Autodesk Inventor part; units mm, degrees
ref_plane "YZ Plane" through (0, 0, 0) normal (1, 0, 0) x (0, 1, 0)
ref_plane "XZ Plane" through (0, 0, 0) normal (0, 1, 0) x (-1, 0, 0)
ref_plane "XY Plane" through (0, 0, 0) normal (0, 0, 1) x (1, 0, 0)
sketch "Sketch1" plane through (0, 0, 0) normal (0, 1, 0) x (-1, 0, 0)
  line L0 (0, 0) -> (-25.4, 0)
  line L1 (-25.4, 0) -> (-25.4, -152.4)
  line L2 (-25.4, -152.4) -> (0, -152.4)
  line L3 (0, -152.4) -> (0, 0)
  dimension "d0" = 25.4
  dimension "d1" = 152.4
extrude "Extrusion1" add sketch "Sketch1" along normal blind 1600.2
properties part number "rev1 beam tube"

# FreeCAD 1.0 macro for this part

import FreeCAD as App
import Part
import Sketcher

V = App.Vector
Q = App.Units.Quantity


def add_polygon(sketch, points):
    """Adds a closed chain of lines whose ends are joined by coincident constraints."""
    first, n = sketch.GeometryCount, len(points)
    for a, b in zip(points, points[1:] + points[:1]):
        sketch.addGeometry(Part.LineSegment(App.Vector(*a, 0), App.Vector(*b, 0)), False)
    for i in range(n):
        sketch.addConstraint(Sketcher.Constraint("Coincident", first + i, 2, first + (i + 1) % n, 1))

doc = App.newDocument("Part")
body = doc.addObject("PartDesign::Body", "Body")

# Sketch on XZ plane
sketch1 = body.newObject("Sketcher::SketchObject", "Sketch")
sketch1.AttachmentSupport = (doc.getObject("XZ_Plane"), [""])
sketch1.MapMode = "FlatFace"
add_polygon(sketch1, [(0, -152), (0, 0), (25, 0), (25, -152)])  # lines 0-3
sketch1.addConstraint([
    Sketcher.Constraint("Vertical", 0),
    Sketcher.Constraint("Horizontal", 1),
    Sketcher.Constraint("Vertical", 2),
    Sketcher.Constraint("Horizontal", 3),
    Sketcher.Constraint("Coincident", 0, 2, -1, 1),
    Sketcher.Constraint("DistanceX", 1, 1, 1, 2, Q("1 in")),
    Sketcher.Constraint("DistanceY", 0, 1, 0, 2, Q("6 in")),
])
pad1 = body.newObject("PartDesign::Pad", "Pad")
pad1.Profile = sketch1
pad1.Length = Q("63 in")
pad1.Reversed = True

doc.recompute()
